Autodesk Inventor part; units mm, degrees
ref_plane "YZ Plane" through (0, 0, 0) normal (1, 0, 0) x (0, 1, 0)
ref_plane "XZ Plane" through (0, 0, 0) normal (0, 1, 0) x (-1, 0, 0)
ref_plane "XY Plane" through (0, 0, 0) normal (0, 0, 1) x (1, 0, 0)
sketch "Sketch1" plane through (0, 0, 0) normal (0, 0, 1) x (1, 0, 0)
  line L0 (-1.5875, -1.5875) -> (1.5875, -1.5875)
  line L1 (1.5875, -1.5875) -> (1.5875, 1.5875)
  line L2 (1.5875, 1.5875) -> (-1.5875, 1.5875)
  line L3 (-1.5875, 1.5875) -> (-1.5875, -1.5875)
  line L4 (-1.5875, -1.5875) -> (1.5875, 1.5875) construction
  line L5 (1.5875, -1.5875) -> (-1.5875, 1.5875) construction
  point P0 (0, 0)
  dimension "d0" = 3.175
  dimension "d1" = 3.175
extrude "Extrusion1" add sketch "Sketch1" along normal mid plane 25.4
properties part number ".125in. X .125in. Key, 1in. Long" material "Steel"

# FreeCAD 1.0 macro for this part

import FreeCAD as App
import Part
import Sketcher
Q = App.Units.Quantity


def add_polygon(sketch, points):
    """Adds a closed chain of lines whose ends are joined by coincident constraints."""
    first, n = sketch.GeometryCount, len(points)
    for a, b in zip(points, points[1:] + points[:1]):
        sketch.addGeometry(Part.LineSegment(App.Vector(*a, 0), App.Vector(*b, 0)), False)
    for i in range(n):
        sketch.addConstraint(Sketcher.Constraint("Coincident", first + i, 2, first + (i + 1) % n, 1))

doc = App.newDocument("Part")
body = doc.addObject("PartDesign::Body", "Body")

# Sketch on XY plane
sketch1 = body.newObject("Sketcher::SketchObject", "Sketch")
sketch1.AttachmentSupport = (doc.getObject("XY_Plane"), [""])
sketch1.MapMode = "FlatFace"
add_polygon(sketch1, [(-1.6, 1.6), (-1.6, -1.6), (1.6, -1.6), (1.6, 1.6)])  # lines 0-3
sketch1.addConstraint([
    Sketcher.Constraint("Vertical", 0),
    Sketcher.Constraint("Horizontal", 1),
    Sketcher.Constraint("Vertical", 2),
    Sketcher.Constraint("Horizontal", 3),
    Sketcher.Constraint("Symmetric", 0, 2, 2, 2, -1, 1),
    Sketcher.Constraint("Equal", 3, 0),
    Sketcher.Constraint("DistanceX", 1, 1, 1, 2, Q("0.125 in")),
])
pad1 = body.newObject("PartDesign::Pad", "Pad")
pad1.Profile = sketch1
pad1.Length = Q("1 in")
pad1.Midplane = True

doc.recompute()
